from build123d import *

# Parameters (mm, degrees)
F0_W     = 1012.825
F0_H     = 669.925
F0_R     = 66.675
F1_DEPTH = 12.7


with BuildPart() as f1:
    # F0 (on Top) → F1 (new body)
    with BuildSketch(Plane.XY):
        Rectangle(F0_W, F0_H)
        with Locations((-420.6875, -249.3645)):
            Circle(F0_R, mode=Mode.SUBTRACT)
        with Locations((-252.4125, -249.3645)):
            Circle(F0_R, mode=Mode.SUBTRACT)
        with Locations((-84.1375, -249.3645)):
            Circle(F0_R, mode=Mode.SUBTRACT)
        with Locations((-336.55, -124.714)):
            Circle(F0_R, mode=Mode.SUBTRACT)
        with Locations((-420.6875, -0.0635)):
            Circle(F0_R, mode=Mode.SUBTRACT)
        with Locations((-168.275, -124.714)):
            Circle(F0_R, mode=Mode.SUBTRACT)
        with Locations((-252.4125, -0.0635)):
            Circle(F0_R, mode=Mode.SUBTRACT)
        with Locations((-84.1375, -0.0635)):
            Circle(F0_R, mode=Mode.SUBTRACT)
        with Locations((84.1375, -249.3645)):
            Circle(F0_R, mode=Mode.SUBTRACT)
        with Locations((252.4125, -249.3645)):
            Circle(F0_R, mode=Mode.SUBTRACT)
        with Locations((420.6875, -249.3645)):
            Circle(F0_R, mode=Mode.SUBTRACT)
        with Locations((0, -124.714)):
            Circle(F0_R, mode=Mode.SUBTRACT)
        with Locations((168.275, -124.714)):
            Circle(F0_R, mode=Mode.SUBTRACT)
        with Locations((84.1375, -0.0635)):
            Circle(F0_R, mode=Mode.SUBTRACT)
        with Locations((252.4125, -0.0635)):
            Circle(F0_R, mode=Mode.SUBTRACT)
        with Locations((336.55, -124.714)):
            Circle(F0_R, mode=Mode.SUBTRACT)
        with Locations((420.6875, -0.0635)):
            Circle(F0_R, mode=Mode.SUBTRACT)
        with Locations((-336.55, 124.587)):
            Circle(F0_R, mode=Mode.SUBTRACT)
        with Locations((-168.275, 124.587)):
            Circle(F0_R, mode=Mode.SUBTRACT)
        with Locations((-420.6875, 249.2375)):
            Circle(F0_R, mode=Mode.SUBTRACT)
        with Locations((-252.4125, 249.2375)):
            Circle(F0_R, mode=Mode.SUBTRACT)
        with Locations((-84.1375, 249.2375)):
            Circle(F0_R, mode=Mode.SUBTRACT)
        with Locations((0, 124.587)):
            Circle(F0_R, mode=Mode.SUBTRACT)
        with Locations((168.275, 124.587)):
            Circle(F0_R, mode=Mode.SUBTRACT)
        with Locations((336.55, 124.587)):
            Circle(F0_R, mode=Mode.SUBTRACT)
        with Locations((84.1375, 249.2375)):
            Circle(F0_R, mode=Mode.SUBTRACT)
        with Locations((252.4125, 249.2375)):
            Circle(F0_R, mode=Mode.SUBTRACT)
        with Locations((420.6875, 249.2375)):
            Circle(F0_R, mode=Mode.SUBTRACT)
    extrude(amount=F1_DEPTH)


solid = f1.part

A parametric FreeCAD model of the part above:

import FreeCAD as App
import Part
import Sketcher

V = App.Vector
Q = App.Units.Quantity

doc = App.newDocument("Part")
body = doc.addObject("PartDesign::Body", "Body")

sketch1 = body.newObject("Sketcher::SketchObject", "Sketch")
sketch1.AttachmentSupport = (doc.getObject("XY_Plane"), [""])
sketch1.MapMode = "FlatFace"
sketch1.addGeometry([
    Part.LineSegment(V(-506.4125, 334.9625, 0), V(-506.4125, -334.9625, 0)),
    Part.LineSegment(V(-506.4125, -334.9625, 0), V(506.4125, -334.9625, 0)),
    Part.LineSegment(V(506.4125, -334.9625, 0), V(506.4125, 334.9625, 0)),
    Part.LineSegment(V(506.4125, 334.9625, 0), V(-506.4125, 334.9625, 0)),
    Part.Circle(V(-420.6875, -249.3645, 0), V(0, 0, 1), 66.675),
    Part.Circle(V(-252.4125, -249.3645, 0), V(0, 0, 1), 66.675),
    Part.Circle(V(-84.1375, -249.3645, 0), V(0, 0, 1), 66.675),
    Part.Circle(V(-336.55, -124.714, 0), V(0, 0, 1), 66.675),
    Part.Circle(V(-168.275, -124.714, 0), V(0, 0, 1), 66.675),
    Part.Circle(V(84.1375, -249.3645, 0), V(0, 0, 1), 66.675),
    Part.Circle(V(252.4125, -249.3645, 0), V(0, 0, 1), 66.675),
    Part.Circle(V(420.6875, -249.3645, 0), V(0, 0, 1), 66.675),
    Part.Circle(V(0, -124.714, 0), V(0, 0, 1), 66.675),
    Part.Circle(V(168.275, -124.714, 0), V(0, 0, 1), 66.675),
    Part.Circle(V(336.55, -124.714, 0), V(0, 0, 1), 66.675),
    Part.Circle(V(-420.6875, -0.0635, 0), V(0, 0, 1), 66.675),
    Part.Circle(V(-252.4125, -0.0635, 0), V(0, 0, 1), 66.675),
    Part.Circle(V(-336.55, 124.587, 0), V(0, 0, 1), 66.675),
    Part.Circle(V(-84.1375, -0.0635, 0), V(0, 0, 1), 66.675),
    Part.Circle(V(-168.275, 124.587, 0), V(0, 0, 1), 66.675),
    Part.Circle(V(-420.6875, 249.2375, 0), V(0, 0, 1), 66.675),
    Part.Circle(V(-252.4125, 249.2375, 0), V(0, 0, 1), 66.675),
    Part.Circle(V(-84.1375, 249.2375, 0), V(0, 0, 1), 66.675),
    Part.Circle(V(84.1375, -0.0635, 0), V(0, 0, 1), 66.675),
    Part.Circle(V(0, 124.587, 0), V(0, 0, 1), 66.675),
    Part.Circle(V(168.275, 124.587, 0), V(0, 0, 1), 66.675),
    Part.Circle(V(252.4125, -0.0635, 0), V(0, 0, 1), 66.675),
    Part.Circle(V(420.6875, -0.0635, 0), V(0, 0, 1), 66.675),
    Part.Circle(V(336.55, 124.587, 0), V(0, 0, 1), 66.675),
    Part.Circle(V(84.1375, 249.2375, 0), V(0, 0, 1), 66.675),
    Part.Circle(V(252.4125, 249.2375, 0), V(0, 0, 1), 66.675),
    Part.Circle(V(420.6875, 249.2375, 0), V(0, 0, 1), 66.675),
], False)
sketch1.addConstraint([
    Sketcher.Constraint("Coincident", 0, 2, 1, 1),
    Sketcher.Constraint("Coincident", 1, 2, 2, 1),
    Sketcher.Constraint("Coincident", 2, 2, 3, 1),
    Sketcher.Constraint("Coincident", 3, 2, 0, 1),
    Sketcher.Constraint("Vertical", 0),
    Sketcher.Constraint("Horizontal", 1),
    Sketcher.Constraint("Vertical", 2),
    Sketcher.Constraint("Horizontal", 3),
    Sketcher.Constraint("Equal", 4, 5),
    Sketcher.Constraint("Equal", 5, 6),
    Sketcher.Constraint("Equal", 6, 7),
    Sketcher.Constraint("Equal", 7, 8),
    Sketcher.Constraint("Equal", 8, 9),
    Sketcher.Constraint("Equal", 9, 10),
    Sketcher.Constraint("Equal", 10, 11),
    Sketcher.Constraint("Equal", 11, 12),
    Sketcher.Constraint("Equal", 12, 13),
    Sketcher.Constraint("Equal", 13, 14),
    Sketcher.Constraint("Equal", 14, 15),
    Sketcher.Constraint("Equal", 15, 16),
    Sketcher.Constraint("Equal", 16, 17),
    Sketcher.Constraint("Equal", 17, 18),
    Sketcher.Constraint("Equal", 18, 19),
    Sketcher.Constraint("Equal", 19, 20),
    Sketcher.Constraint("Equal", 20, 21),
    Sketcher.Constraint("Equal", 21, 22),
    Sketcher.Constraint("Equal", 22, 23),
    Sketcher.Constraint("Equal", 23, 24),
    Sketcher.Constraint("Equal", 24, 25),
    Sketcher.Constraint("Equal", 25, 26),
    Sketcher.Constraint("Equal", 26, 27),
    Sketcher.Constraint("Equal", 27, 28),
    Sketcher.Constraint("Equal", 28, 29),
    Sketcher.Constraint("Equal", 29, 30),
    Sketcher.Constraint("Equal", 30, 31),
    Sketcher.Constraint("Symmetric", 0, 2, 2, 2, -1, 1),
    Sketcher.Constraint("Symmetric", 6, 3, 9, 3, -2),
    Sketcher.Constraint("Symmetric", 5, 3, 10, 3, -2),
    Sketcher.Constraint("Symmetric", 4, 3, 11, 3, -2),
    Sketcher.Constraint("Symmetric", 8, 3, 13, 3, -2),
    Sketcher.Constraint("Symmetric", 7, 3, 14, 3, -2),
    Sketcher.Constraint("Symmetric", 18, 3, 23, 3, -2),
    Sketcher.Constraint("Symmetric", 19, 3, 25, 3, -2),
    Sketcher.Constraint("Symmetric", 16, 3, 26, 3, -2),
    Sketcher.Constraint("Symmetric", 15, 3, 27, 3, -2),
    Sketcher.Constraint("Symmetric", 17, 3, 28, 3, -2),
    Sketcher.Constraint("Symmetric", 22, 3, 29, 3, -2),
    Sketcher.Constraint("Symmetric", 21, 3, 30, 3, -2),
    Sketcher.Constraint("Symmetric", 20, 3, 31, 3, -2),
    Sketcher.Constraint("PointOnObject", 12, 3, -2),
    Sketcher.Constraint("PointOnObject", 24, 3, -2),
    Sketcher.Constraint("Horizontal", 4, 3, 5, 3),
    Sketcher.Constraint("Horizontal", 5, 3, 6, 3),
    Sketcher.Constraint("Horizontal", 7, 3, 8, 3),
    Sketcher.Constraint("Horizontal", 8, 3, 12, 3),
    Sketcher.Constraint("Horizontal", 15, 3, 16, 3),
    Sketcher.Constraint("Horizontal", 16, 3, 18, 3),
    Sketcher.Constraint("Horizontal", 17, 3, 19, 3),
    Sketcher.Constraint("Horizontal", 20, 3, 21, 3),
    Sketcher.Constraint("Horizontal", 21, 3, 22, 3),
    Sketcher.Constraint("Horizontal", 19, 3, 24, 3),
    Sketcher.Constraint("Vertical", 4, 3, 15, 3),
    Sketcher.Constraint("Vertical", 5, 3, 16, 3),
    Sketcher.Constraint("Vertical", 7, 3, 17, 3),
    Sketcher.Constraint("Vertical", 6, 3, 18, 3),
    Sketcher.Constraint("Vertical", 8, 3, 19, 3),
    Sketcher.Constraint("Vertical", 15, 3, 20, 3),
    Sketcher.Constraint("Vertical", 16, 3, 21, 3),
    Sketcher.Constraint("Vertical", 18, 3, 22, 3),
    Sketcher.Constraint("Diameter", 4, Q("5.25 in")),
    Sketcher.Constraint("DistanceX", 0, 2, 5, 3, Q("10 in")),
    Sketcher.Constraint("DistanceX", 5, 3, 11, 3, Q("26.5 in")),
    Sketcher.Constraint("DistanceX", 1, 1, 1, 2, Q("39.875 in")),
    Sketcher.Constraint("DistanceY", 0, 2, 0, 1, Q("26.375 in")),
    Sketcher.Constraint("DistanceX", 7, 3, -1, 1, Q("13.25 in")),
    Sketcher.Constraint("DistanceY", 7, 3, -1, 1, Q("4.91 in")),
    Sketcher.Constraint("DistanceX", 4, 3, 6, 3, Q("13.25 in")),
    Sketcher.Constraint("DistanceY", 0, 2, 4, 3, Q("3.37 in")),
    Sketcher.Constraint("DistanceY", 27, 3, 2, 2, Q("13.19 in")),
    Sketcher.Constraint("DistanceX", 8, 3, -1, 1, Q("6.625 in")),
    Sketcher.Constraint("DistanceY", -1, 1, 17, 3, Q("4.905 in")),
    Sketcher.Constraint("DistanceY", -1, 1, 20, 3, Q("9.8125 in")),
])
pad1 = body.newObject("PartDesign::Pad", "Pad")
pad1.Profile = sketch1
pad1.Length = Q("0.5 in")

doc.recompute()
